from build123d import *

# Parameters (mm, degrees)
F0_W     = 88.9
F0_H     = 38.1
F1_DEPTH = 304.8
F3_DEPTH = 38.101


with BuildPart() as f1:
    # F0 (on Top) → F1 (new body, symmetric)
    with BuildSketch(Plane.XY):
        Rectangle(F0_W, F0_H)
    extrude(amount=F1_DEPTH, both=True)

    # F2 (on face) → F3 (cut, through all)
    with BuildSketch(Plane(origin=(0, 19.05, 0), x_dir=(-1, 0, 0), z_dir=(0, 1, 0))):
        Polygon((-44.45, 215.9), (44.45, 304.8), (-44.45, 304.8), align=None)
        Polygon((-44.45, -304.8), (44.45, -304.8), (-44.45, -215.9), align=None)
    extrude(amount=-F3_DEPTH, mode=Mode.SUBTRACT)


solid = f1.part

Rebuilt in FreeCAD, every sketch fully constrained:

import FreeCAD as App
import Part
import Sketcher
Q = App.Units.Quantity


def add_polygon(sketch, points):
    """Adds a closed chain of lines whose ends are joined by coincident constraints."""
    first, n = sketch.GeometryCount, len(points)
    for a, b in zip(points, points[1:] + points[:1]):
        sketch.addGeometry(Part.LineSegment(App.Vector(*a, 0), App.Vector(*b, 0)), False)
    for i in range(n):
        sketch.addConstraint(Sketcher.Constraint("Coincident", first + i, 2, first + (i + 1) % n, 1))

doc = App.newDocument("Part")
body = doc.addObject("PartDesign::Body", "Body")

sketch1 = doc.addObject("Sketcher::SketchObject", "Sketch")
body.addObject(sketch1)
sketch1.AttachmentSupport = (doc.XY_Plane, [""])
sketch1.MapMode = "FlatFace"
add_polygon(sketch1, [(-44, 19), (-44, -19), (44, -19), (44, 19)])
sketch1.addConstraint([
    Sketcher.Constraint("Vertical", 0),
    Sketcher.Constraint("Horizontal", 1),
    Sketcher.Constraint("Vertical", 2),
    Sketcher.Constraint("Horizontal", 3),
    Sketcher.Constraint("Symmetric", 0, 2, 2, 2, -1, 1),
    Sketcher.Constraint("DistanceX", 1, 1, 1, 2, Q("3.5 in")),
    Sketcher.Constraint("DistanceY", 0, 2, 0, 1, Q("1.5 in")),
])
pad1 = doc.addObject("PartDesign::Pad", "Pad")
body.addObject(pad1)
pad1.Profile = sketch1
pad1.Length = Q("24 in")
pad1.Midplane = True

sketch2 = doc.addObject("Sketcher::SketchObject", "Sketch001")
body.addObject(sketch2)
sketch2.AttachmentSupport = (doc.XZ_Plane, [""])
sketch2.MapMode = "FlatFace"
sketch2.AttachmentOffset = App.Placement(App.Vector(0, 0, -0.75 * 25.4), App.Rotation())
add_polygon(sketch2, [(44, 216), (-44, 305), (44, 305)])
add_polygon(sketch2, [(44, -305), (-44, -305), (44, -216)])
sketch2.addConstraint([
    Sketcher.Constraint("Horizontal", 1),
    Sketcher.Constraint("Vertical", 2),
    Sketcher.Constraint("Horizontal", 3),
    Sketcher.Constraint("Vertical", 5),
    Sketcher.Constraint("Symmetric", 1, 2, 3, 2, -1, 1),
    Sketcher.Constraint("Symmetric", 2, 2, 4, 2, -1),
    Sketcher.Constraint("Perpendicular", 0, 4),
    Sketcher.Constraint("Vertical", 0, 2, 3, 2),
    Sketcher.Constraint("DistanceX", 1, 1, 1, 2, Q("3.5 in")),
    Sketcher.Constraint("DistanceY", -1, 1, 0, 2, Q("12 in")),
])
pocket1 = doc.addObject("PartDesign::Pocket", "Pocket")
body.addObject(pocket1)
pocket1.Profile = sketch2
pocket1.Type = "ThroughAll"
pocket1.Reversed = True

doc.recompute()
